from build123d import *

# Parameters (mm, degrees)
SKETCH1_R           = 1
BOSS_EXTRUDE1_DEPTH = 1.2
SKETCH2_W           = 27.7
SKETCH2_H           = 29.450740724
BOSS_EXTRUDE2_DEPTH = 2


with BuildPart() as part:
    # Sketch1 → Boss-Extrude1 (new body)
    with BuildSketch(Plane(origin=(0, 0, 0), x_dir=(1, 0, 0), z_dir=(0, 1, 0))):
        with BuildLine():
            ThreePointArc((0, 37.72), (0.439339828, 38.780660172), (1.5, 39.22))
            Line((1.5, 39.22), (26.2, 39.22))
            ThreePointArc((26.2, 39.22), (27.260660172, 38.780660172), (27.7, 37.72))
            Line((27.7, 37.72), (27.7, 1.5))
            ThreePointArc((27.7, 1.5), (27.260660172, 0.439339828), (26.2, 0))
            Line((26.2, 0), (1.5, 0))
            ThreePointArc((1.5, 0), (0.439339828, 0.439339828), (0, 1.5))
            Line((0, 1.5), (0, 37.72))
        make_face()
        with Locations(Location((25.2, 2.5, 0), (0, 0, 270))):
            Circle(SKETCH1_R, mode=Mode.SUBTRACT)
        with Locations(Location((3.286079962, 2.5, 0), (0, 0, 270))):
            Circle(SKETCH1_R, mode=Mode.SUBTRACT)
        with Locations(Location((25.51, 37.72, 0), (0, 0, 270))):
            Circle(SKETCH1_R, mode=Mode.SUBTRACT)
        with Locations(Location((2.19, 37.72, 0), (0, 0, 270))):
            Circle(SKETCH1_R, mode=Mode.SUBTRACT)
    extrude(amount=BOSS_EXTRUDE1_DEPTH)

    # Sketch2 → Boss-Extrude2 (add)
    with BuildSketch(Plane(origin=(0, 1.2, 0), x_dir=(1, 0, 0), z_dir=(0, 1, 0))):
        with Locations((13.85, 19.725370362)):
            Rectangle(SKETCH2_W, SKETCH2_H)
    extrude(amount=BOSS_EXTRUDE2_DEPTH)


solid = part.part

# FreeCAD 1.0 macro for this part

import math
import FreeCAD as App
import Part
import Sketcher
Q = App.Units.Quantity

doc = App.newDocument("Part")
body = doc.addObject("PartDesign::Body", "Body")

# Sketch on XZ plane
sketch1 = body.newObject("Sketcher::SketchObject", "Sketch")
sketch1.AttachmentSupport = (doc.getObject("XZ_Plane"), [""])
sketch1.MapMode = "FlatFace"
sketch1.addGeometry([
    Part.ArcOfCircle(Part.Circle(App.Vector(1.5, -37.7, 0), App.Vector(0, 0, 1), 1.5), math.radians(180), math.radians(270)),  # 0
    Part.LineSegment(App.Vector(0, -37.7, 0), App.Vector(0, -1.5, 0)),  # 1
    Part.ArcOfCircle(Part.Circle(App.Vector(1.5, -1.5, 0), App.Vector(0, 0, 1), 1.5), math.radians(90), math.radians(180)),  # 2
    Part.LineSegment(App.Vector(1.5, 0, 0), App.Vector(26.2, 0, 0)),  # 3
    Part.ArcOfCircle(Part.Circle(App.Vector(26.2, -1.5, 0), App.Vector(0, 0, 1), 1.5), math.radians(0), math.radians(90)),  # 4
    Part.LineSegment(App.Vector(27.7, -1.5, 0), App.Vector(27.7, -37.7, 0)),  # 5
    Part.ArcOfCircle(Part.Circle(App.Vector(26.2, -37.7, 0), App.Vector(0, 0, 1), 1.5), math.radians(-90), math.radians(0)),  # 6
    Part.LineSegment(App.Vector(26.2, -39.2, 0), App.Vector(1.5, -39.2, 0)),  # 7
    Part.Circle(App.Vector(25.2, -2.5, 0), App.Vector(0, 0, 1), 1),  # 8
    Part.Circle(App.Vector(3.3, -2.5, 0), App.Vector(0, 0, 1), 1),  # 9
    Part.Circle(App.Vector(25.5, -37.7, 0), App.Vector(0, 0, 1), 1),  # 10
    Part.Circle(App.Vector(2.2, -37.7, 0), App.Vector(0, 0, 1), 1),  # 11
], False)
sketch1.addConstraint([
    Sketcher.Constraint("Tangent", 0, 1, 1, 1),
    Sketcher.Constraint("Tangent", 1, 2, 2, 2),
    Sketcher.Constraint("Tangent", 2, 1, 3, 1),
    Sketcher.Constraint("Tangent", 3, 2, 4, 2),
    Sketcher.Constraint("Tangent", 4, 1, 5, 1),
    Sketcher.Constraint("Tangent", 5, 2, 6, 2),
    Sketcher.Constraint("Tangent", 6, 1, 7, 1),
    Sketcher.Constraint("Tangent", 7, 2, 0, 2),
    Sketcher.Constraint("Vertical", 1),
    Sketcher.Constraint("Horizontal", 3),
    Sketcher.Constraint("Vertical", 5),
    Sketcher.Constraint("Horizontal", 7),
    Sketcher.Constraint("Equal", 0, 2),
    Sketcher.Constraint("Equal", 2, 4),
    Sketcher.Constraint("Equal", 4, 6),
    Sketcher.Constraint("Equal", 8, 9),
    Sketcher.Constraint("Equal", 9, 10),
    Sketcher.Constraint("Equal", 10, 11),
    Sketcher.Constraint("PointOnObject", 0, 1, -2),
    Sketcher.Constraint("PointOnObject", 2, 1, -1),
    Sketcher.Constraint("Horizontal", 8, 3, 9, 3),
    Sketcher.Constraint("Horizontal", 6, 3, 10, 3),
    Sketcher.Constraint("Horizontal", 10, 3, 11, 3),
    Sketcher.Constraint("Diameter", 8, Q("2 mm")),
    Sketcher.Constraint("Radius", 0, Q("1.5 mm")),
    Sketcher.Constraint("DistanceX", 3, 1, 3, 2, Q("24.7 mm")),
    Sketcher.Constraint("DistanceX", 8, 3, 4, 3, Q("1 mm")),
    Sketcher.Constraint("DistanceY", 8, 3, 4, 3, Q("1 mm")),
    Sketcher.Constraint("DistanceY", 1, 1, 1, 2, Q("36.22 mm")),
    Sketcher.Constraint("DistanceX", -1, 1, 10, 3, Q("25.51 mm")),
    Sketcher.Constraint("DistanceX", -1, 1, 11, 3, Q("2.19 mm")),
    Sketcher.Constraint("DistanceX", -1, 1, 9, 3, Q("3.28608 mm")),
])
pad1 = body.newObject("PartDesign::Pad", "Pad")
pad1.Profile = sketch1
pad1.Length = 1.2
pad1.Reversed = True

# Sketch on XZ plane
sketch2 = body.newObject("Sketcher::SketchObject", "Sketch001")
sketch2.AttachmentSupport = (doc.getObject("XZ_Plane"), [""])
sketch2.MapMode = "FlatFace"
sketch2.AttachmentOffset = App.Placement(App.Vector(0, 0, -1.2), App.Rotation())
sketch2.addGeometry([
    Part.LineSegment(App.Vector(0, -34, 0), App.Vector(0, -5, 0)),
    Part.LineSegment(App.Vector(0, -5, 0), App.Vector(28, -5, 0)),
    Part.LineSegment(App.Vector(28, -5, 0), App.Vector(28, -34, 0)),
    Part.LineSegment(App.Vector(28, -34, 0), App.Vector(0, -34, 0)),
], False)
sketch2.addConstraint([
    Sketcher.Constraint("Coincident", 0, 2, 1, 1),
    Sketcher.Constraint("Coincident", 1, 2, 2, 1),
    Sketcher.Constraint("Coincident", 2, 2, 3, 1),
    Sketcher.Constraint("Coincident", 3, 2, 0, 1),
    Sketcher.Constraint("Vertical", 0),
    Sketcher.Constraint("Horizontal", 1),
    Sketcher.Constraint("Vertical", 2),
    Sketcher.Constraint("Horizontal", 3),
    Sketcher.Constraint("PointOnObject", 0, 2, -2),
    Sketcher.Constraint("DistanceX", 1, 1, 1, 2, Q("27.7 mm")),
    Sketcher.Constraint("DistanceY", 0, 2, -1, 1, Q("5 mm")),
    Sketcher.Constraint("DistanceY", 0, 1, 0, 2, Q("29.450741 mm")),
])
pad2 = body.newObject("PartDesign::Pad", "Pad001")
pad2.Profile = sketch2
pad2.Length = 2
pad2.Reversed = True

doc.recompute()
